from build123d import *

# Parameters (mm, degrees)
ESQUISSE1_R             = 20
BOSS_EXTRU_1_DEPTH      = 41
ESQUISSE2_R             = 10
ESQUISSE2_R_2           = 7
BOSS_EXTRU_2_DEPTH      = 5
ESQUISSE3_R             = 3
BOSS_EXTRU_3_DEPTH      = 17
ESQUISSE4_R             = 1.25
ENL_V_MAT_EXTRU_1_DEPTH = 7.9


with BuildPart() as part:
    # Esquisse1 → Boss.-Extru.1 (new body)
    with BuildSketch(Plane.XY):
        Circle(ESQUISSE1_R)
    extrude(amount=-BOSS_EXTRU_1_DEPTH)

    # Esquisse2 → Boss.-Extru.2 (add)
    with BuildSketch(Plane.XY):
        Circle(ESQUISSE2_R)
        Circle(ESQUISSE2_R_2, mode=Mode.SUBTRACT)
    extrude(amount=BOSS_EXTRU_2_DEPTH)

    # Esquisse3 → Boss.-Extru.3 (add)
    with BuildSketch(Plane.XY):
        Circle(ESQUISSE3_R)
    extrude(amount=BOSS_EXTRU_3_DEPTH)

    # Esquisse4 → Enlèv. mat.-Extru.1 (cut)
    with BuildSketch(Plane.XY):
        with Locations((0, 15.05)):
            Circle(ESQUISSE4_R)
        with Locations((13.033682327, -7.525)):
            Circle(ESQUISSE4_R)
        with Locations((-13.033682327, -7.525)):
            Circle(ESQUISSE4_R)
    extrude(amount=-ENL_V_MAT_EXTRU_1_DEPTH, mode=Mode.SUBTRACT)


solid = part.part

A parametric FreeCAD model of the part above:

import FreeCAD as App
import Part
import Sketcher

doc = App.newDocument("Part")
body = doc.addObject("PartDesign::Body", "Body")

# Sketch on XY plane
sketch1 = doc.addObject("Sketcher::SketchObject", "Sketch")
body.addObject(sketch1)
sketch1.AttachmentSupport = (doc.XY_Plane, [""])
sketch1.MapMode = "FlatFace"
sketch1.addGeometry(Part.Circle(App.Vector(0, 0, 0), App.Vector(0, 0, 1), 20), False)
sketch1.addConstraint(Sketcher.Constraint("Coincident", 0, 3, -1, 1))
sketch1.addConstraint(Sketcher.Constraint("Diameter", 0, 40.0))
pad1 = doc.addObject("PartDesign::Pad", "Pad")
body.addObject(pad1)
pad1.Profile = sketch1
pad1.Length = 41
pad1.Reversed = True

# Sketch on XY plane
sketch2 = doc.addObject("Sketcher::SketchObject", "Sketch001")
body.addObject(sketch2)
sketch2.AttachmentSupport = (doc.XY_Plane, [""])
sketch2.MapMode = "FlatFace"
sketch2.addGeometry(Part.Circle(App.Vector(0, 0, 0), App.Vector(0, 0, 1), 10), False)
sketch2.addGeometry(Part.Circle(App.Vector(0, 0, 0), App.Vector(0, 0, 1), 7), False)
sketch2.addConstraint(Sketcher.Constraint("Coincident", 0, 3, -1, 1))
sketch2.addConstraint(Sketcher.Constraint("Coincident", 1, 3, -1, 1))
sketch2.addConstraint(Sketcher.Constraint("Diameter", 0, 20.0))
sketch2.addConstraint(Sketcher.Constraint("Diameter", 1, 14.0))
pad2 = doc.addObject("PartDesign::Pad", "Pad001")
body.addObject(pad2)
pad2.Profile = sketch2
pad2.Length = 5

# Sketch on XY plane
sketch3 = doc.addObject("Sketcher::SketchObject", "Sketch002")
body.addObject(sketch3)
sketch3.AttachmentSupport = (doc.XY_Plane, [""])
sketch3.MapMode = "FlatFace"
sketch3.addGeometry(Part.Circle(App.Vector(0, 0, 0), App.Vector(0, 0, 1), 3), False)
sketch3.addConstraint(Sketcher.Constraint("Coincident", 0, 3, -1, 1))
sketch3.addConstraint(Sketcher.Constraint("Diameter", 0, 6.0))
pad3 = doc.addObject("PartDesign::Pad", "Pad002")
body.addObject(pad3)
pad3.Profile = sketch3
pad3.Length = 17

# Sketch on XY plane
sketch4 = doc.addObject("Sketcher::SketchObject", "Sketch003")
body.addObject(sketch4)
sketch4.AttachmentSupport = (doc.XY_Plane, [""])
sketch4.MapMode = "FlatFace"
sketch4.addGeometry(Part.Circle(App.Vector(0, 15.1, 0), App.Vector(0, 0, 1), 1.2), False)
sketch4.addGeometry(Part.Circle(App.Vector(13, -7.5, 0), App.Vector(0, 0, 1), 1.2), False)
sketch4.addGeometry(Part.Circle(App.Vector(-13, -7.5, 0), App.Vector(0, 0, 1), 1.2), False)
sketch4.addConstraint(Sketcher.Constraint("Equal", 0, 1))
sketch4.addConstraint(Sketcher.Constraint("Equal", 1, 2))
sketch4.addConstraint(Sketcher.Constraint("Symmetric", 1, 3, 2, 3, -2))
sketch4.addConstraint(Sketcher.Constraint("PointOnObject", 0, 3, -2))
sketch4.addConstraint(Sketcher.Constraint("Diameter", 0, 2.5))
sketch4.addConstraint(Sketcher.Constraint("DistanceY", -1, 1, 0, 3, 15.05))
sketch4.addConstraint(Sketcher.Constraint("DistanceY", 1, 3, -1, 1, 7.525))
sketch4.addConstraint(Sketcher.Constraint("DistanceX", -1, 1, 1, 3, 13.033682))
pocket1 = doc.addObject("PartDesign::Pocket", "Pocket")
body.addObject(pocket1)
pocket1.Profile = sketch4
pocket1.Length = 7.9

doc.recompute()
